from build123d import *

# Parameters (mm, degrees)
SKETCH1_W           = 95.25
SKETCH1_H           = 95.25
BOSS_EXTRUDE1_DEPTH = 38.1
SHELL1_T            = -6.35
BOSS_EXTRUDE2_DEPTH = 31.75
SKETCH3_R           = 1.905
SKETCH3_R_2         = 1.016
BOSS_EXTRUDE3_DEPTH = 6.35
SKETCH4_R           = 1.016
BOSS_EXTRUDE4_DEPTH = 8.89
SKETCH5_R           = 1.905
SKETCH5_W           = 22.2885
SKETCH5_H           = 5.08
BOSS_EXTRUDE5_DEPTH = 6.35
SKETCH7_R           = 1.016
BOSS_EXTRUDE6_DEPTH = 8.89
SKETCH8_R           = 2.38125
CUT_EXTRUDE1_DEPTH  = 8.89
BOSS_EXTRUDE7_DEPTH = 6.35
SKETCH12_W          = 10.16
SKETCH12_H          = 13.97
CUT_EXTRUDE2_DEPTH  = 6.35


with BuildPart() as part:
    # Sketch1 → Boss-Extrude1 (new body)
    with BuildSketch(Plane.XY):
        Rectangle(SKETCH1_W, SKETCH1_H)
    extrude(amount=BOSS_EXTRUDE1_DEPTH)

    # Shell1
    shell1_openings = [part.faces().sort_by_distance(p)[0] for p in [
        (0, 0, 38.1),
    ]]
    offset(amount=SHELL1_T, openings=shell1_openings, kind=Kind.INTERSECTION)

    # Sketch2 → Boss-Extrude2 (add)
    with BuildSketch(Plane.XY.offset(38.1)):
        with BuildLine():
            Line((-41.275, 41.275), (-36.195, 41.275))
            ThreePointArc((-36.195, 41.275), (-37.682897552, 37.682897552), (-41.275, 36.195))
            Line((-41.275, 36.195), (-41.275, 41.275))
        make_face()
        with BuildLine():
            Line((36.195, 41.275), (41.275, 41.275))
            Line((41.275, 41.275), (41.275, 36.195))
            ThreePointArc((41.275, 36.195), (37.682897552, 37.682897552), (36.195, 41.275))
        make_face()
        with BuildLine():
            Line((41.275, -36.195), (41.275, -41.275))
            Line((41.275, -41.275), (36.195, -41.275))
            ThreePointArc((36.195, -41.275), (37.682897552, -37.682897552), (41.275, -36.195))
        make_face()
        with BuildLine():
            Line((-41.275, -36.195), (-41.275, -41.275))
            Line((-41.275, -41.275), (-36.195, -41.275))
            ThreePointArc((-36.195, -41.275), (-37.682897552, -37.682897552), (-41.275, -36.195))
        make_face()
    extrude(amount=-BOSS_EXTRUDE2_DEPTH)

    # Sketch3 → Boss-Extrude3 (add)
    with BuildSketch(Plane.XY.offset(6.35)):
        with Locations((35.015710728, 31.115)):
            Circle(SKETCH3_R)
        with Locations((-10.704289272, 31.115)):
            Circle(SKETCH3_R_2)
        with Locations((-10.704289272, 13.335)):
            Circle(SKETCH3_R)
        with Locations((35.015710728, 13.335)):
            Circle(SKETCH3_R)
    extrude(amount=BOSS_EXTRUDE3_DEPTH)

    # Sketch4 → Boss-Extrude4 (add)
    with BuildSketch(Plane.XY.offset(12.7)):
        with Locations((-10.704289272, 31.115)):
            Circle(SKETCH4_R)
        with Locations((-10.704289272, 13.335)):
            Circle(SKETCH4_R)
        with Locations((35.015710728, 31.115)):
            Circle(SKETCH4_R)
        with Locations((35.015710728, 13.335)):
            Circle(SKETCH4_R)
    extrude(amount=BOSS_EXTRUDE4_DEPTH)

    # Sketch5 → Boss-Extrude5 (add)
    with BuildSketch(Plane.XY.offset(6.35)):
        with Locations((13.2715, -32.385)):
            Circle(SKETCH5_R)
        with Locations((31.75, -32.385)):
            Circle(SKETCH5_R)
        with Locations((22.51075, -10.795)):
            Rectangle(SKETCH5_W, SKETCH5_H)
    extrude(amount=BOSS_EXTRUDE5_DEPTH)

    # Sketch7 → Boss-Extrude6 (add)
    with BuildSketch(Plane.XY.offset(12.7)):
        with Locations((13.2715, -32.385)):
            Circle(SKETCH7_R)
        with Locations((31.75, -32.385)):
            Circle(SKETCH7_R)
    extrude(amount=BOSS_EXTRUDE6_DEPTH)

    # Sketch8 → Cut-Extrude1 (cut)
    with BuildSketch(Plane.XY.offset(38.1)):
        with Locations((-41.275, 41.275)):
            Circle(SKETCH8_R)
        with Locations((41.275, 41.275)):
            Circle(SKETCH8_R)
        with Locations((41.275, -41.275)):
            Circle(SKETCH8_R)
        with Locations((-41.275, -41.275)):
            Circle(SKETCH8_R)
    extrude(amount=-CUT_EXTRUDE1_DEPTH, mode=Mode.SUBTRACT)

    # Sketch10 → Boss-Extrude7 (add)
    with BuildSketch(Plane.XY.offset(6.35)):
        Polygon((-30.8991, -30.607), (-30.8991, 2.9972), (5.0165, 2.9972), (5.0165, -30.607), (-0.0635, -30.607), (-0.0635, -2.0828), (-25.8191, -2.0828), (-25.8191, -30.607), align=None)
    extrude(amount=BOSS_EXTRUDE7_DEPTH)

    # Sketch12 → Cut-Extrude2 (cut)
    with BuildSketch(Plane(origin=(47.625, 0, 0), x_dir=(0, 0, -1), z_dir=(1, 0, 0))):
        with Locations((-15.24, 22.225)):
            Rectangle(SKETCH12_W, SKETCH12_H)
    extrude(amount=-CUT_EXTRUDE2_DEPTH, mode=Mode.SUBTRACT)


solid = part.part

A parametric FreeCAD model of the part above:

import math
import FreeCAD as App
import Part
import Sketcher
Q = App.Units.Quantity


def faces_at(feature, points):
    """Names of the faces that lie closest to the given points."""
    faces = feature.Shape.Faces
    near = lambda p: min(range(len(faces)), key=lambda i: faces[i].distToShape(Part.Vertex(*p))[0])
    return sorted({f"Face{near(p) + 1}" for p in points})


def add_polygon(sketch, points):
    """Adds a closed chain of lines whose ends are joined by coincident constraints."""
    first, n = sketch.GeometryCount, len(points)
    for a, b in zip(points, points[1:] + points[:1]):
        sketch.addGeometry(Part.LineSegment(App.Vector(*a, 0), App.Vector(*b, 0)), False)
    for i in range(n):
        sketch.addConstraint(Sketcher.Constraint("Coincident", first + i, 2, first + (i + 1) % n, 1))

doc = App.newDocument("Part")
body = doc.addObject("PartDesign::Body", "Body")

# Sketch on XY plane
sketch1 = body.newObject("Sketcher::SketchObject", "Sketch")
sketch1.AttachmentSupport = (doc.getObject("XY_Plane"), [""])
sketch1.MapMode = "FlatFace"
add_polygon(sketch1, [(-48, 48), (-48, -48), (48, -48), (48, 48)])  # lines 0-3
sketch1.addConstraint(Sketcher.Constraint("Vertical", 0))
sketch1.addConstraint(Sketcher.Constraint("Horizontal", 1))
sketch1.addConstraint(Sketcher.Constraint("Vertical", 2))
sketch1.addConstraint(Sketcher.Constraint("Horizontal", 3))
sketch1.addConstraint(Sketcher.Constraint("Symmetric", 0, 2, 2, 2, -1, 1))
sketch1.addConstraint(Sketcher.Constraint("Equal", 3, 0))
sketch1.addConstraint(Sketcher.Constraint("DistanceX", 1, 1, 1, 2, Q("3.75 in")))
pad1 = body.newObject("PartDesign::Pad", "Pad")
pad1.Profile = sketch1
pad1.Length = Q("1.5 in")
doc.recompute()

thickness = body.newObject("PartDesign::Thickness", "Thickness")
thickness.Base = (pad1, faces_at(pad1, [(0, 0, 38.1)]))
thickness.Value = Q("0.25 in")
thickness.Reversed = True
thickness.Join = "Intersection"

# Sketch on XY plane
sketch2 = body.newObject("Sketcher::SketchObject", "Sketch001")
sketch2.AttachmentSupport = (doc.getObject("XY_Plane"), [""])
sketch2.MapMode = "FlatFace"
sketch2.AttachmentOffset = App.Placement(App.Vector(0, 0, 1.5 * 25.4), App.Rotation())
sketch2.addGeometry(Part.LineSegment(App.Vector(-36, 41, 0), App.Vector(-41, 41, 0)), False)
sketch2.addGeometry(Part.LineSegment(App.Vector(-41, 41, 0), App.Vector(-41, 36, 0)), False)
sketch2.addGeometry(Part.ArcOfCircle(Part.Circle(App.Vector(-41, 41, 0), App.Vector(0, 0, 1), 5), math.radians(-90), math.radians(0)), False)
sketch2.addGeometry(Part.LineSegment(App.Vector(41, 41, 0), App.Vector(36, 41, 0)), False)
sketch2.addGeometry(Part.ArcOfCircle(Part.Circle(App.Vector(41, 41, 0), App.Vector(0, 0, 1), 5), math.radians(-180), math.radians(-90)), False)
sketch2.addGeometry(Part.LineSegment(App.Vector(41, 36, 0), App.Vector(41, 41, 0)), False)
sketch2.addGeometry(Part.LineSegment(App.Vector(41, -41, 0), App.Vector(41, -36, 0)), False)
sketch2.addGeometry(Part.ArcOfCircle(Part.Circle(App.Vector(41, -41, 0), App.Vector(0, 0, 1), 5), math.radians(90), math.radians(180)), False)
sketch2.addGeometry(Part.LineSegment(App.Vector(36, -41, 0), App.Vector(41, -41, 0)), False)
sketch2.addGeometry(Part.LineSegment(App.Vector(-41, -36, 0), App.Vector(-41, -41, 0)), False)
sketch2.addGeometry(Part.LineSegment(App.Vector(-41, -41, 0), App.Vector(-36, -41, 0)), False)
sketch2.addGeometry(Part.ArcOfCircle(Part.Circle(App.Vector(-41, -41, 0), App.Vector(0, 0, 1), 5), math.radians(0), math.radians(90)), False)
sketch2.addConstraint(Sketcher.Constraint("Coincident", 0, 2, 1, 1))
sketch2.addConstraint(Sketcher.Constraint("Coincident", 1, 2, 2, 1))
sketch2.addConstraint(Sketcher.Constraint("Coincident", 2, 2, 0, 1))
sketch2.addConstraint(Sketcher.Constraint("Coincident", 3, 2, 4, 1))
sketch2.addConstraint(Sketcher.Constraint("Coincident", 4, 2, 5, 1))
sketch2.addConstraint(Sketcher.Constraint("Coincident", 5, 2, 3, 1))
sketch2.addConstraint(Sketcher.Constraint("Coincident", 6, 2, 7, 1))
sketch2.addConstraint(Sketcher.Constraint("Coincident", 7, 2, 8, 1))
sketch2.addConstraint(Sketcher.Constraint("Coincident", 8, 2, 6, 1))
sketch2.addConstraint(Sketcher.Constraint("Coincident", 9, 2, 10, 1))
sketch2.addConstraint(Sketcher.Constraint("Coincident", 10, 2, 11, 1))
sketch2.addConstraint(Sketcher.Constraint("Coincident", 11, 2, 9, 1))
sketch2.addConstraint(Sketcher.Constraint("Horizontal", 0))
sketch2.addConstraint(Sketcher.Constraint("Vertical", 1))
sketch2.addConstraint(Sketcher.Constraint("Horizontal", 3))
sketch2.addConstraint(Sketcher.Constraint("Vertical", 5))
sketch2.addConstraint(Sketcher.Constraint("Vertical", 6))
sketch2.addConstraint(Sketcher.Constraint("Horizontal", 8))
sketch2.addConstraint(Sketcher.Constraint("Vertical", 9))
sketch2.addConstraint(Sketcher.Constraint("Horizontal", 10))
sketch2.addConstraint(Sketcher.Constraint("Coincident", 0, 2, 2, 3))
sketch2.addConstraint(Sketcher.Constraint("Coincident", 5, 2, 4, 3))
sketch2.addConstraint(Sketcher.Constraint("Coincident", 8, 2, 7, 3))
sketch2.addConstraint(Sketcher.Constraint("Coincident", 9, 2, 11, 3))
sketch2.addConstraint(Sketcher.Constraint("Equal", 2, 4))
sketch2.addConstraint(Sketcher.Constraint("Equal", 4, 7))
sketch2.addConstraint(Sketcher.Constraint("Equal", 7, 11))
sketch2.addConstraint(Sketcher.Constraint("Symmetric", 2, 3, 7, 3, -1, 1))
sketch2.addConstraint(Sketcher.Constraint("Symmetric", 4, 3, 11, 3, -1, 1))
sketch2.addConstraint(Sketcher.Constraint("Symmetric", 2, 3, 4, 3, -2))
sketch2.addConstraint(Sketcher.Constraint("Radius", 2, Q("0.2 in")))
sketch2.addConstraint(Sketcher.Constraint("DistanceX", 2, 3, 4, 3, Q("3.25 in")))
sketch2.addConstraint(Sketcher.Constraint("DistanceY", 7, 3, 4, 3, Q("3.25 in")))
pad2 = body.newObject("PartDesign::Pad", "Pad001")
pad2.Profile = sketch2
pad2.Length = Q("1.25 in")
pad2.Reversed = True

# Sketch on XY plane
sketch3 = body.newObject("Sketcher::SketchObject", "Sketch002")
sketch3.AttachmentSupport = (doc.getObject("XY_Plane"), [""])
sketch3.MapMode = "FlatFace"
sketch3.AttachmentOffset = App.Placement(App.Vector(0, 0, 0.25 * 25.4), App.Rotation())
sketch3.addGeometry(Part.Circle(App.Vector(35, 31.1, 0), App.Vector(0, 0, 1), 1.9), False)
sketch3.addGeometry(Part.Circle(App.Vector(-10.7, 31.1, 0), App.Vector(0, 0, 1), 1), False)
sketch3.addGeometry(Part.Circle(App.Vector(-10.7, 13.3, 0), App.Vector(0, 0, 1), 1.9), False)
sketch3.addGeometry(Part.Circle(App.Vector(35, 13.3, 0), App.Vector(0, 0, 1), 1.9), False)
sketch3.addConstraint(Sketcher.Constraint("Equal", 0, 2))
sketch3.addConstraint(Sketcher.Constraint("Equal", 2, 3))
sketch3.addConstraint(Sketcher.Constraint("Horizontal", 0, 3, 1, 3))
sketch3.addConstraint(Sketcher.Constraint("Horizontal", 2, 3, 3, 3))
sketch3.addConstraint(Sketcher.Constraint("Vertical", 1, 3, 2, 3))
sketch3.addConstraint(Sketcher.Constraint("Vertical", 0, 3, 3, 3))
sketch3.addConstraint(Sketcher.Constraint("Diameter", 0, Q("0.15 in")))
sketch3.addConstraint(Sketcher.Constraint("Diameter", 1, Q("0.08 in")))
sketch3.addConstraint(Sketcher.Constraint("DistanceX", 1, 3, 0, 3, Q("1.8 in")))
sketch3.addConstraint(Sketcher.Constraint("DistanceY", 2, 3, 1, 3, Q("0.7 in")))
sketch3.addConstraint(Sketcher.Constraint("DistanceY", -1, 1, 0, 3, Q("1.225 in")))
sketch3.addConstraint(Sketcher.Constraint("DistanceX", -1, 1, 0, 3, 35.015711))
pad3 = body.newObject("PartDesign::Pad", "Pad002")
pad3.Profile = sketch3
pad3.Length = Q("0.25 in")

# Sketch on XY plane
sketch4 = body.newObject("Sketcher::SketchObject", "Sketch003")
sketch4.AttachmentSupport = (doc.getObject("XY_Plane"), [""])
sketch4.MapMode = "FlatFace"
sketch4.AttachmentOffset = App.Placement(App.Vector(0, 0, 0.5 * 25.4), App.Rotation())
sketch4.addGeometry(Part.Circle(App.Vector(-10.7, 31.1, 0), App.Vector(0, 0, 1), 1), False)
sketch4.addGeometry(Part.Circle(App.Vector(-10.7, 13.3, 0), App.Vector(0, 0, 1), 1), False)
sketch4.addGeometry(Part.Circle(App.Vector(35, 31.1, 0), App.Vector(0, 0, 1), 1), False)
sketch4.addGeometry(Part.Circle(App.Vector(35, 13.3, 0), App.Vector(0, 0, 1), 1), False)
sketch4.addConstraint(Sketcher.Constraint("Equal", 0, 1))
sketch4.addConstraint(Sketcher.Constraint("Equal", 1, 2))
sketch4.addConstraint(Sketcher.Constraint("Equal", 2, 3))
sketch4.addConstraint(Sketcher.Constraint("Horizontal", 0, 3, 2, 3))
sketch4.addConstraint(Sketcher.Constraint("Horizontal", 1, 3, 3, 3))
sketch4.addConstraint(Sketcher.Constraint("Vertical", 0, 3, 1, 3))
sketch4.addConstraint(Sketcher.Constraint("Vertical", 2, 3, 3, 3))
sketch4.addConstraint(Sketcher.Constraint("Diameter", 0, Q("0.08 in")))
sketch4.addConstraint(Sketcher.Constraint("DistanceY", 1, 3, 0, 3, Q("0.7 in")))
sketch4.addConstraint(Sketcher.Constraint("DistanceX", 0, 3, 2, 3, Q("1.8 in")))
sketch4.addConstraint(Sketcher.Constraint("DistanceY", -1, 1, 0, 3, Q("1.225 in")))
sketch4.addConstraint(Sketcher.Constraint("DistanceX", 0, 3, -1, 1, 10.704289))
pad4 = body.newObject("PartDesign::Pad", "Pad003")
pad4.Profile = sketch4
pad4.Length = Q("0.35 in")

# Sketch on XY plane
sketch5 = body.newObject("Sketcher::SketchObject", "Sketch004")
sketch5.AttachmentSupport = (doc.getObject("XY_Plane"), [""])
sketch5.MapMode = "FlatFace"
sketch5.AttachmentOffset = App.Placement(App.Vector(0, 0, 0.25 * 25.4), App.Rotation())
sketch5.addGeometry(Part.Circle(App.Vector(13.3, -32.4, 0), App.Vector(0, 0, 1), 1.9), False)  # 0
sketch5.addGeometry(Part.Circle(App.Vector(31.8, -32.4, 0), App.Vector(0, 0, 1), 1.9), False)  # 1
add_polygon(sketch5, [(11.4, -8.3), (11.4, -13.3), (33.7, -13.3), (33.7, -8.3)])  # lines 2-5
sketch5.addConstraint(Sketcher.Constraint("Vertical", 2))
sketch5.addConstraint(Sketcher.Constraint("Horizontal", 3))
sketch5.addConstraint(Sketcher.Constraint("Vertical", 4))
sketch5.addConstraint(Sketcher.Constraint("Horizontal", 5))
sketch5.addConstraint(Sketcher.Constraint("Equal", 0, 1))
sketch5.addConstraint(Sketcher.Constraint("Horizontal", 0, 3, 1, 3))
sketch5.addConstraint(Sketcher.Constraint("Diameter", 0, Q("0.15 in")))
sketch5.addConstraint(Sketcher.Constraint("DistanceY", 2, 2, 2, 1, Q("0.2 in")))
sketch5.addConstraint(Sketcher.Constraint("DistanceX", -1, 1, 1, 3, Q("1.25 in")))
sketch5.addConstraint(Sketcher.Constraint("DistanceY", 0, 3, 2, 2, Q("0.75 in")))
sketch5.addConstraint(Sketcher.Constraint("DistanceX", 3, 1, 3, 2, Q("0.8775 in")))
sketch5.addConstraint(Sketcher.Constraint("DistanceY", 0, 3, -1, 1, Q("1.275 in")))
sketch5.addConstraint(Sketcher.Constraint("DistanceX", -1, 1, 3, 2, Q("1.325 in")))
sketch5.addConstraint(Sketcher.Constraint("DistanceX", 2, 2, 0, 3, Q("0.075 in")))
pad5 = body.newObject("PartDesign::Pad", "Pad004")
pad5.Profile = sketch5
pad5.Length = Q("0.25 in")

# Sketch on XY plane
sketch6 = body.newObject("Sketcher::SketchObject", "Sketch005")
sketch6.AttachmentSupport = (doc.getObject("XY_Plane"), [""])
sketch6.MapMode = "FlatFace"
sketch6.AttachmentOffset = App.Placement(App.Vector(0, 0, 0.5 * 25.4), App.Rotation())
sketch6.addGeometry(Part.Circle(App.Vector(13.3, -32.4, 0), App.Vector(0, 0, 1), 1), False)
sketch6.addGeometry(Part.Circle(App.Vector(31.8, -32.4, 0), App.Vector(0, 0, 1), 1), False)
sketch6.addConstraint(Sketcher.Constraint("Equal", 0, 1))
sketch6.addConstraint(Sketcher.Constraint("Horizontal", 0, 3, 1, 3))
sketch6.addConstraint(Sketcher.Constraint("Diameter", 0, Q("0.08 in")))
sketch6.addConstraint(Sketcher.Constraint("DistanceX", -1, 1, 1, 3, Q("1.25 in")))
sketch6.addConstraint(Sketcher.Constraint("DistanceY", 0, 3, -1, 1, Q("1.275 in")))
sketch6.addConstraint(Sketcher.Constraint("DistanceX", -1, 1, 0, 3, Q("0.5225 in")))
pad6 = body.newObject("PartDesign::Pad", "Pad005")
pad6.Profile = sketch6
pad6.Length = Q("0.35 in")

# Sketch on XY plane
sketch7 = body.newObject("Sketcher::SketchObject", "Sketch006")
sketch7.AttachmentSupport = (doc.getObject("XY_Plane"), [""])
sketch7.MapMode = "FlatFace"
sketch7.AttachmentOffset = App.Placement(App.Vector(0, 0, 1.5 * 25.4), App.Rotation())
sketch7.addGeometry(Part.Circle(App.Vector(-41.3, 41.3, 0), App.Vector(0, 0, 1), 2.4), False)
sketch7.addGeometry(Part.Circle(App.Vector(41.3, 41.3, 0), App.Vector(0, 0, 1), 2.4), False)
sketch7.addGeometry(Part.Circle(App.Vector(41.3, -41.3, 0), App.Vector(0, 0, 1), 2.4), False)
sketch7.addGeometry(Part.Circle(App.Vector(-41.3, -41.3, 0), App.Vector(0, 0, 1), 2.4), False)
sketch7.addConstraint(Sketcher.Constraint("Equal", 0, 1))
sketch7.addConstraint(Sketcher.Constraint("Equal", 1, 2))
sketch7.addConstraint(Sketcher.Constraint("Equal", 2, 3))
sketch7.addConstraint(Sketcher.Constraint("Symmetric", 0, 3, 2, 3, -1, 1))
sketch7.addConstraint(Sketcher.Constraint("Symmetric", 1, 3, 3, 3, -1, 1))
sketch7.addConstraint(Sketcher.Constraint("Symmetric", 0, 3, 1, 3, -2))
sketch7.addConstraint(Sketcher.Constraint("Diameter", 0, Q("0.1875 in")))
sketch7.addConstraint(Sketcher.Constraint("DistanceX", 0, 3, 1, 3, Q("3.25 in")))
sketch7.addConstraint(Sketcher.Constraint("DistanceY", 2, 3, 1, 3, Q("3.25 in")))
pocket1 = body.newObject("PartDesign::Pocket", "Pocket")
pocket1.Profile = sketch7
pocket1.Length = Q("0.35 in")

# Sketch on XY plane
sketch8 = body.newObject("Sketcher::SketchObject", "Sketch007")
sketch8.AttachmentSupport = (doc.getObject("XY_Plane"), [""])
sketch8.MapMode = "FlatFace"
sketch8.AttachmentOffset = App.Placement(App.Vector(0, 0, 0.25 * 25.4), App.Rotation())
add_polygon(sketch8, [(-31, 3), (-31, -31), (-26, -31), (-26, -2), (0, -2), (0, -31), (5, -31), (5, 3)])  # lines 0-7
sketch8.addConstraint(Sketcher.Constraint("Vertical", 0))
sketch8.addConstraint(Sketcher.Constraint("Horizontal", 1))
sketch8.addConstraint(Sketcher.Constraint("Vertical", 2))
sketch8.addConstraint(Sketcher.Constraint("Horizontal", 3))
sketch8.addConstraint(Sketcher.Constraint("Vertical", 4))
sketch8.addConstraint(Sketcher.Constraint("Horizontal", 5))
sketch8.addConstraint(Sketcher.Constraint("Vertical", 6))
sketch8.addConstraint(Sketcher.Constraint("Horizontal", 7))
sketch8.addConstraint(Sketcher.Constraint("Horizontal", 1, 2, 4, 2))
sketch8.addConstraint(Sketcher.Constraint("Equal", 1, 5))
sketch8.addConstraint(Sketcher.Constraint("DistanceX", 1, 1, 1, 2, Q("0.2 in")))
sketch8.addConstraint(Sketcher.Constraint("DistanceY", 3, 2, 6, 2, Q("0.2 in")))
sketch8.addConstraint(Sketcher.Constraint("DistanceX", 3, 1, 3, 2, Q("1.014 in")))
sketch8.addConstraint(Sketcher.Constraint("DistanceY", 0, 2, 0, 1, Q("1.323 in")))
sketch8.addConstraint(Sketcher.Constraint("DistanceY", 0, 2, -1, 1, Q("1.205 in")))
sketch8.addConstraint(Sketcher.Constraint("DistanceX", 0, 2, -1, 1, Q("1.2165 in")))
pad7 = body.newObject("PartDesign::Pad", "Pad006")
pad7.Profile = sketch8
pad7.Length = Q("0.25 in")

# Sketch on YZ plane
sketch9 = body.newObject("Sketcher::SketchObject", "Sketch008")
sketch9.AttachmentSupport = (doc.getObject("YZ_Plane"), [""])
sketch9.MapMode = "FlatFace"
sketch9.AttachmentOffset = App.Placement(App.Vector(0, 0, 1.875 * 25.4), App.Rotation())
add_polygon(sketch9, [(29, 20), (15, 20), (15, 10), (29, 10)])  # lines 0-3
sketch9.addConstraint(Sketcher.Constraint("Horizontal", 0))
sketch9.addConstraint(Sketcher.Constraint("Vertical", 1))
sketch9.addConstraint(Sketcher.Constraint("Horizontal", 2))
sketch9.addConstraint(Sketcher.Constraint("Vertical", 3))
sketch9.addConstraint(Sketcher.Constraint("DistanceY", 1, 2, 1, 1, Q("0.4 in")))
sketch9.addConstraint(Sketcher.Constraint("DistanceX", 0, 2, 0, 1, Q("0.55 in")))
sketch9.addConstraint(Sketcher.Constraint("DistanceX", -1, 1, 0, 2, Q("0.6 in")))
sketch9.addConstraint(Sketcher.Constraint("DistanceY", -1, 1, 0, 2, Q("0.8 in")))
pocket2 = body.newObject("PartDesign::Pocket", "Pocket001")
pocket2.Profile = sketch9
pocket2.Length = Q("0.25 in")

doc.recompute()
